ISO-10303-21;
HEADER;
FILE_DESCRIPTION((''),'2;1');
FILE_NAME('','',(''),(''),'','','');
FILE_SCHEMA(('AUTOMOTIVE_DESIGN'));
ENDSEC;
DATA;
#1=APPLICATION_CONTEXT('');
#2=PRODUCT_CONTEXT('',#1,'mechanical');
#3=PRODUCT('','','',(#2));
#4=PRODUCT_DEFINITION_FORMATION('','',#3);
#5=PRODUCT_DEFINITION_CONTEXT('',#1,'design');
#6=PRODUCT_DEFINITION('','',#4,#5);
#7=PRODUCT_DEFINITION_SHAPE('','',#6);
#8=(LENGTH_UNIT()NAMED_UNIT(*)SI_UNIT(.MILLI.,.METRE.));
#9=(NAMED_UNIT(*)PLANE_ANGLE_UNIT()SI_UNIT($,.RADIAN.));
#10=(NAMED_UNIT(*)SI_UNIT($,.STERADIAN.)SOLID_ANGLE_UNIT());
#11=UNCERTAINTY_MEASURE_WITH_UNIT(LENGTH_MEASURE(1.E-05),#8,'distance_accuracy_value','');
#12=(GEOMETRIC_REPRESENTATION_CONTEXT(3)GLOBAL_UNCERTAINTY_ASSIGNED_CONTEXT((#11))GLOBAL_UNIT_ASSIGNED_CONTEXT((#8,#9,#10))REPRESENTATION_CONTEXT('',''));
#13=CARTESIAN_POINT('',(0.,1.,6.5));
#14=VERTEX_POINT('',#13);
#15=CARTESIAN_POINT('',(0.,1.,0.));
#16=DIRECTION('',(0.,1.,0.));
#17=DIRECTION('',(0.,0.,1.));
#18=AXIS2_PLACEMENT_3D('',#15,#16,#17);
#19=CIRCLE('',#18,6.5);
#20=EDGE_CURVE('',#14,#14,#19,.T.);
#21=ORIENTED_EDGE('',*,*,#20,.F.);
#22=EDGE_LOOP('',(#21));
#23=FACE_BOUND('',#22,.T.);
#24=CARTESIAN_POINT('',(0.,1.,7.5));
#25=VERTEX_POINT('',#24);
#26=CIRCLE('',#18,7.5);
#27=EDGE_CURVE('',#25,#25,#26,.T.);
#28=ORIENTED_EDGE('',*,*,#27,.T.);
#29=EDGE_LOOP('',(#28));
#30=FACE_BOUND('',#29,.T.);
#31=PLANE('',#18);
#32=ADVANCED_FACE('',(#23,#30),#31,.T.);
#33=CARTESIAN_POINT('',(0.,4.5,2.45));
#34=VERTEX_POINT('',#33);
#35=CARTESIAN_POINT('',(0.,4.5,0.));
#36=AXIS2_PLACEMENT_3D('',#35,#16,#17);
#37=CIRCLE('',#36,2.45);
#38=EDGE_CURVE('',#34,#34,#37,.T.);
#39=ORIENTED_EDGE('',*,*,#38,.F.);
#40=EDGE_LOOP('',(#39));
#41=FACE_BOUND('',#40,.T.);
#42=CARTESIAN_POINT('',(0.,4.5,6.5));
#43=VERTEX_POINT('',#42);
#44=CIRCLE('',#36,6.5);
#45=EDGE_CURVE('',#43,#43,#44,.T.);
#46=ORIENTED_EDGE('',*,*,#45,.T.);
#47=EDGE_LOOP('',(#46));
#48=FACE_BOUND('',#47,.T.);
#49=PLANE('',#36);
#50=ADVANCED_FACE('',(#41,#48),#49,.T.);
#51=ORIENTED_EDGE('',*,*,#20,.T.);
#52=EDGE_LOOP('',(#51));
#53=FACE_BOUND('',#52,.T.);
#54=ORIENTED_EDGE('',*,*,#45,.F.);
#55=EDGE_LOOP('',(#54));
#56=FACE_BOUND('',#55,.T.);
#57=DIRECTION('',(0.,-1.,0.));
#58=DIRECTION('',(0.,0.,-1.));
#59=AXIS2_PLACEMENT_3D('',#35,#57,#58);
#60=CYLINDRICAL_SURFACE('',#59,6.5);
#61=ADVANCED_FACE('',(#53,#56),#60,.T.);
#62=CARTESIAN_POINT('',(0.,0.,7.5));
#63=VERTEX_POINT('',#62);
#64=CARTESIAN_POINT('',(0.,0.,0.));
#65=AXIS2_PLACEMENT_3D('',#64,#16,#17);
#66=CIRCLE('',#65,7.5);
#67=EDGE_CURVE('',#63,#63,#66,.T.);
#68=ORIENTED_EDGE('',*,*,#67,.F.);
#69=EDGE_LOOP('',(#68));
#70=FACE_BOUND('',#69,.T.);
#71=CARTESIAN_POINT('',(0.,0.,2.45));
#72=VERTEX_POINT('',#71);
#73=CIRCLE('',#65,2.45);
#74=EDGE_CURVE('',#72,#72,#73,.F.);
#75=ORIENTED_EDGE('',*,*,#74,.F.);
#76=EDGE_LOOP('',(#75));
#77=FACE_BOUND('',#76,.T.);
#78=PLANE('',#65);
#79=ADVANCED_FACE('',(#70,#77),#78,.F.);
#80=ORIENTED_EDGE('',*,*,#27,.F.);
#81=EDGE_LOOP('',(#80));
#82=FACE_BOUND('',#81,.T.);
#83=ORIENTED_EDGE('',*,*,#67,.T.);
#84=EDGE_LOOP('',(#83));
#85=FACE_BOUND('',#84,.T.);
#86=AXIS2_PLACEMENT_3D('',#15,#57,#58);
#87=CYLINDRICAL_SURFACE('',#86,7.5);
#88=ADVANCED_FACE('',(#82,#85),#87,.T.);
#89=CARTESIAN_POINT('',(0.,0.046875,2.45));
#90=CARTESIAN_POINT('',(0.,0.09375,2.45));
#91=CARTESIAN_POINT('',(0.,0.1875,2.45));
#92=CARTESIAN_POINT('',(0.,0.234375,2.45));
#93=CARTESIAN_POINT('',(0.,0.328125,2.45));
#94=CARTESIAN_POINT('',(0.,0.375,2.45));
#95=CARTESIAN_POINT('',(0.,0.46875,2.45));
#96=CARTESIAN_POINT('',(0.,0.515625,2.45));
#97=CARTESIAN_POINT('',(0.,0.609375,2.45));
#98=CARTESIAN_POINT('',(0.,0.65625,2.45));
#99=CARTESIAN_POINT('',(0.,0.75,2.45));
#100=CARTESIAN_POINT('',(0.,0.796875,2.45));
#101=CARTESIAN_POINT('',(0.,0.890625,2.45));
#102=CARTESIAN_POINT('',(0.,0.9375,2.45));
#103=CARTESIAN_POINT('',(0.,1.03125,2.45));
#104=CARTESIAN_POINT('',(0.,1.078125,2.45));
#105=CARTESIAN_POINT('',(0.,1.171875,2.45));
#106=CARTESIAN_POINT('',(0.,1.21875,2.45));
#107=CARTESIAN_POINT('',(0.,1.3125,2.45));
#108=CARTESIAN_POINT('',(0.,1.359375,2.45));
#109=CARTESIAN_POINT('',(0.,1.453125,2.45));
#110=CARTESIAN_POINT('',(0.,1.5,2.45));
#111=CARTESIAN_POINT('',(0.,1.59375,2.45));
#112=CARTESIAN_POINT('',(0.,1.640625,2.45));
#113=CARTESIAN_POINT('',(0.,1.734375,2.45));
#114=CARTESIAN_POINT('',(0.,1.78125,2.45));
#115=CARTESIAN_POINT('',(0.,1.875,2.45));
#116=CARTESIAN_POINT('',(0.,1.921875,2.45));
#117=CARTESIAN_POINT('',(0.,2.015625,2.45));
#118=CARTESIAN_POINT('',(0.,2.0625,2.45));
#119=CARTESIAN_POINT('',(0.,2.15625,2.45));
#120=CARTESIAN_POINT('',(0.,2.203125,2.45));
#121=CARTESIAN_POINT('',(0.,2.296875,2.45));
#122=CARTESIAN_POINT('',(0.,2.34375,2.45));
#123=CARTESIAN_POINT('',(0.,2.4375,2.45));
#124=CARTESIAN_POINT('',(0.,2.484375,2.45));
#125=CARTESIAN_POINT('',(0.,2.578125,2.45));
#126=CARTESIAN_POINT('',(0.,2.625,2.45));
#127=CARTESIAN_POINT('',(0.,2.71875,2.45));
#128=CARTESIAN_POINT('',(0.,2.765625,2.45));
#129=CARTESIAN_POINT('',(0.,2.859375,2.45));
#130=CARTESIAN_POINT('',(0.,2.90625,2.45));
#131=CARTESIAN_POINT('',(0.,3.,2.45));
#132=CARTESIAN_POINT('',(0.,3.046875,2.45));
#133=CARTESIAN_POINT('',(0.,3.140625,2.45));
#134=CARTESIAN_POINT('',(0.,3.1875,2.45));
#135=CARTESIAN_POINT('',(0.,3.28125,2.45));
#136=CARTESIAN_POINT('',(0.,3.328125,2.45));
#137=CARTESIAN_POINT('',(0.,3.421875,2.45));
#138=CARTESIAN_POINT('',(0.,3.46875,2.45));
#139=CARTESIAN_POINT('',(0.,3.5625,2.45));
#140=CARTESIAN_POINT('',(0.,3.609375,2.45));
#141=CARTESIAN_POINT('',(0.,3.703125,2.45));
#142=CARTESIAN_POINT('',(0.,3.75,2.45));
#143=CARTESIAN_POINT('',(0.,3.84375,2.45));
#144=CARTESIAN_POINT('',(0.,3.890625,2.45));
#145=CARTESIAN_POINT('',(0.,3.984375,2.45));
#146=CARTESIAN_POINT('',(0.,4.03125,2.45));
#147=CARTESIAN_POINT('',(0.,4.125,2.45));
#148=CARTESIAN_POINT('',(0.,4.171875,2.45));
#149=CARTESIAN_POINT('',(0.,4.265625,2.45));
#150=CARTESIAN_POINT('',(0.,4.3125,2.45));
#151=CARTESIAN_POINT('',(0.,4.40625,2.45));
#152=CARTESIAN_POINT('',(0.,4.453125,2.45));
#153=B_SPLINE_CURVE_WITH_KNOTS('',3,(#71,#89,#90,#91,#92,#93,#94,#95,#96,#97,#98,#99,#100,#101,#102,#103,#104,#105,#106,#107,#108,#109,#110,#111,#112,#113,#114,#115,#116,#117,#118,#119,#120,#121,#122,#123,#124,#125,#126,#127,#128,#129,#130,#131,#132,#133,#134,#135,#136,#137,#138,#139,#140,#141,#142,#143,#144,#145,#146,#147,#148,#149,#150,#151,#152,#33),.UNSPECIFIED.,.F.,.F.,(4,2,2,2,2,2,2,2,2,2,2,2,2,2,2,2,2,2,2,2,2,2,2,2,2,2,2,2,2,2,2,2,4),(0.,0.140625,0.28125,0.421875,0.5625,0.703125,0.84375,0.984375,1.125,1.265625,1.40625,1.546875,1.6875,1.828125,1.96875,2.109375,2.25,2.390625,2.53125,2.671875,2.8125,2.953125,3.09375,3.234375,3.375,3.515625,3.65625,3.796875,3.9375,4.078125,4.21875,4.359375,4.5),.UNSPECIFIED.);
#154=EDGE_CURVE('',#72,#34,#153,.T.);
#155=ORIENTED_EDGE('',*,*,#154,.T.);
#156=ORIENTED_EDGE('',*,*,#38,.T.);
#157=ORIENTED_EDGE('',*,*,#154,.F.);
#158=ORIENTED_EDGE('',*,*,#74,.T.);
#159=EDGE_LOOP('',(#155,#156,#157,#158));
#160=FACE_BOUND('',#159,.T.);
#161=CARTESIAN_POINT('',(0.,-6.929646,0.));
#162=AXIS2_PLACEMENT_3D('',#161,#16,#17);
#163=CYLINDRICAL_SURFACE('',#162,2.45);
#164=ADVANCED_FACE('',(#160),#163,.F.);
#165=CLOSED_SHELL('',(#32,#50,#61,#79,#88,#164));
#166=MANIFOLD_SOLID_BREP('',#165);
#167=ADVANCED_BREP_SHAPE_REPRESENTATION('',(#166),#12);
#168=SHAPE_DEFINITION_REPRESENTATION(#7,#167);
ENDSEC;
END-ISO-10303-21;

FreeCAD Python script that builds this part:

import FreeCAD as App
import Part
import Sketcher
from FreeCAD import Vector
Q = App.Units.Quantity

doc = App.newDocument("Part")
body = doc.addObject("PartDesign::Body", "Body")

# Sketch on XZ plane
sketch1 = body.newObject("Sketcher::SketchObject", "Sketch")
sketch1.AttachmentSupport = (doc.getObject("XZ_Plane"), [""])
sketch1.MapMode = "FlatFace"
sketch1.addGeometry(Part.Circle(Vector(0, 0, 0), Vector(0, 0, 1), 7.5), False)
sketch1.addConstraint([
    Sketcher.Constraint("Coincident", 0, 3, -1, 1),
    Sketcher.Constraint("Diameter", 0, Q("15 mm")),
])
pad1 = body.newObject("PartDesign::Pad", "Pad")
pad1.Profile = sketch1
pad1.Length = 1
pad1.Reversed = True

# Sketch on XZ plane
sketch2 = body.newObject("Sketcher::SketchObject", "Sketch001")
sketch2.AttachmentSupport = (doc.getObject("XZ_Plane"), [""])
sketch2.MapMode = "FlatFace"
sketch2.AttachmentOffset = App.Placement(Vector(0, 0, -1), App.Rotation())
sketch2.addGeometry(Part.Circle(Vector(0, 0, 0), Vector(0, 0, 1), 6.5), False)
sketch2.addConstraint([
    Sketcher.Constraint("Coincident", 0, 3, -1, 1),
    Sketcher.Constraint("Diameter", 0, Q("13 mm")),
])
pad2 = body.newObject("PartDesign::Pad", "Pad001")
pad2.Profile = sketch2
pad2.Length = 3.5
pad2.Reversed = True

# Sketch on XZ plane
sketch3 = body.newObject("Sketcher::SketchObject", "Sketch002")
sketch3.AttachmentSupport = (doc.getObject("XZ_Plane"), [""])
sketch3.MapMode = "FlatFace"
sketch3.AttachmentOffset = App.Placement(Vector(0, 0, -4.5), App.Rotation())
sketch3.addGeometry(Part.Circle(Vector(0, 0, 0), Vector(0, 0, 1), 2.45), False)
sketch3.addConstraint([
    Sketcher.Constraint("Coincident", 0, 3, -1, 1),
    Sketcher.Constraint("Diameter", 0, Q("4.9 mm")),
])
pocket1 = body.newObject("PartDesign::Pocket", "Pocket")
pocket1.Profile = sketch3
pocket1.Length = 4.5
pocket1.Reversed = True

doc.recompute()
